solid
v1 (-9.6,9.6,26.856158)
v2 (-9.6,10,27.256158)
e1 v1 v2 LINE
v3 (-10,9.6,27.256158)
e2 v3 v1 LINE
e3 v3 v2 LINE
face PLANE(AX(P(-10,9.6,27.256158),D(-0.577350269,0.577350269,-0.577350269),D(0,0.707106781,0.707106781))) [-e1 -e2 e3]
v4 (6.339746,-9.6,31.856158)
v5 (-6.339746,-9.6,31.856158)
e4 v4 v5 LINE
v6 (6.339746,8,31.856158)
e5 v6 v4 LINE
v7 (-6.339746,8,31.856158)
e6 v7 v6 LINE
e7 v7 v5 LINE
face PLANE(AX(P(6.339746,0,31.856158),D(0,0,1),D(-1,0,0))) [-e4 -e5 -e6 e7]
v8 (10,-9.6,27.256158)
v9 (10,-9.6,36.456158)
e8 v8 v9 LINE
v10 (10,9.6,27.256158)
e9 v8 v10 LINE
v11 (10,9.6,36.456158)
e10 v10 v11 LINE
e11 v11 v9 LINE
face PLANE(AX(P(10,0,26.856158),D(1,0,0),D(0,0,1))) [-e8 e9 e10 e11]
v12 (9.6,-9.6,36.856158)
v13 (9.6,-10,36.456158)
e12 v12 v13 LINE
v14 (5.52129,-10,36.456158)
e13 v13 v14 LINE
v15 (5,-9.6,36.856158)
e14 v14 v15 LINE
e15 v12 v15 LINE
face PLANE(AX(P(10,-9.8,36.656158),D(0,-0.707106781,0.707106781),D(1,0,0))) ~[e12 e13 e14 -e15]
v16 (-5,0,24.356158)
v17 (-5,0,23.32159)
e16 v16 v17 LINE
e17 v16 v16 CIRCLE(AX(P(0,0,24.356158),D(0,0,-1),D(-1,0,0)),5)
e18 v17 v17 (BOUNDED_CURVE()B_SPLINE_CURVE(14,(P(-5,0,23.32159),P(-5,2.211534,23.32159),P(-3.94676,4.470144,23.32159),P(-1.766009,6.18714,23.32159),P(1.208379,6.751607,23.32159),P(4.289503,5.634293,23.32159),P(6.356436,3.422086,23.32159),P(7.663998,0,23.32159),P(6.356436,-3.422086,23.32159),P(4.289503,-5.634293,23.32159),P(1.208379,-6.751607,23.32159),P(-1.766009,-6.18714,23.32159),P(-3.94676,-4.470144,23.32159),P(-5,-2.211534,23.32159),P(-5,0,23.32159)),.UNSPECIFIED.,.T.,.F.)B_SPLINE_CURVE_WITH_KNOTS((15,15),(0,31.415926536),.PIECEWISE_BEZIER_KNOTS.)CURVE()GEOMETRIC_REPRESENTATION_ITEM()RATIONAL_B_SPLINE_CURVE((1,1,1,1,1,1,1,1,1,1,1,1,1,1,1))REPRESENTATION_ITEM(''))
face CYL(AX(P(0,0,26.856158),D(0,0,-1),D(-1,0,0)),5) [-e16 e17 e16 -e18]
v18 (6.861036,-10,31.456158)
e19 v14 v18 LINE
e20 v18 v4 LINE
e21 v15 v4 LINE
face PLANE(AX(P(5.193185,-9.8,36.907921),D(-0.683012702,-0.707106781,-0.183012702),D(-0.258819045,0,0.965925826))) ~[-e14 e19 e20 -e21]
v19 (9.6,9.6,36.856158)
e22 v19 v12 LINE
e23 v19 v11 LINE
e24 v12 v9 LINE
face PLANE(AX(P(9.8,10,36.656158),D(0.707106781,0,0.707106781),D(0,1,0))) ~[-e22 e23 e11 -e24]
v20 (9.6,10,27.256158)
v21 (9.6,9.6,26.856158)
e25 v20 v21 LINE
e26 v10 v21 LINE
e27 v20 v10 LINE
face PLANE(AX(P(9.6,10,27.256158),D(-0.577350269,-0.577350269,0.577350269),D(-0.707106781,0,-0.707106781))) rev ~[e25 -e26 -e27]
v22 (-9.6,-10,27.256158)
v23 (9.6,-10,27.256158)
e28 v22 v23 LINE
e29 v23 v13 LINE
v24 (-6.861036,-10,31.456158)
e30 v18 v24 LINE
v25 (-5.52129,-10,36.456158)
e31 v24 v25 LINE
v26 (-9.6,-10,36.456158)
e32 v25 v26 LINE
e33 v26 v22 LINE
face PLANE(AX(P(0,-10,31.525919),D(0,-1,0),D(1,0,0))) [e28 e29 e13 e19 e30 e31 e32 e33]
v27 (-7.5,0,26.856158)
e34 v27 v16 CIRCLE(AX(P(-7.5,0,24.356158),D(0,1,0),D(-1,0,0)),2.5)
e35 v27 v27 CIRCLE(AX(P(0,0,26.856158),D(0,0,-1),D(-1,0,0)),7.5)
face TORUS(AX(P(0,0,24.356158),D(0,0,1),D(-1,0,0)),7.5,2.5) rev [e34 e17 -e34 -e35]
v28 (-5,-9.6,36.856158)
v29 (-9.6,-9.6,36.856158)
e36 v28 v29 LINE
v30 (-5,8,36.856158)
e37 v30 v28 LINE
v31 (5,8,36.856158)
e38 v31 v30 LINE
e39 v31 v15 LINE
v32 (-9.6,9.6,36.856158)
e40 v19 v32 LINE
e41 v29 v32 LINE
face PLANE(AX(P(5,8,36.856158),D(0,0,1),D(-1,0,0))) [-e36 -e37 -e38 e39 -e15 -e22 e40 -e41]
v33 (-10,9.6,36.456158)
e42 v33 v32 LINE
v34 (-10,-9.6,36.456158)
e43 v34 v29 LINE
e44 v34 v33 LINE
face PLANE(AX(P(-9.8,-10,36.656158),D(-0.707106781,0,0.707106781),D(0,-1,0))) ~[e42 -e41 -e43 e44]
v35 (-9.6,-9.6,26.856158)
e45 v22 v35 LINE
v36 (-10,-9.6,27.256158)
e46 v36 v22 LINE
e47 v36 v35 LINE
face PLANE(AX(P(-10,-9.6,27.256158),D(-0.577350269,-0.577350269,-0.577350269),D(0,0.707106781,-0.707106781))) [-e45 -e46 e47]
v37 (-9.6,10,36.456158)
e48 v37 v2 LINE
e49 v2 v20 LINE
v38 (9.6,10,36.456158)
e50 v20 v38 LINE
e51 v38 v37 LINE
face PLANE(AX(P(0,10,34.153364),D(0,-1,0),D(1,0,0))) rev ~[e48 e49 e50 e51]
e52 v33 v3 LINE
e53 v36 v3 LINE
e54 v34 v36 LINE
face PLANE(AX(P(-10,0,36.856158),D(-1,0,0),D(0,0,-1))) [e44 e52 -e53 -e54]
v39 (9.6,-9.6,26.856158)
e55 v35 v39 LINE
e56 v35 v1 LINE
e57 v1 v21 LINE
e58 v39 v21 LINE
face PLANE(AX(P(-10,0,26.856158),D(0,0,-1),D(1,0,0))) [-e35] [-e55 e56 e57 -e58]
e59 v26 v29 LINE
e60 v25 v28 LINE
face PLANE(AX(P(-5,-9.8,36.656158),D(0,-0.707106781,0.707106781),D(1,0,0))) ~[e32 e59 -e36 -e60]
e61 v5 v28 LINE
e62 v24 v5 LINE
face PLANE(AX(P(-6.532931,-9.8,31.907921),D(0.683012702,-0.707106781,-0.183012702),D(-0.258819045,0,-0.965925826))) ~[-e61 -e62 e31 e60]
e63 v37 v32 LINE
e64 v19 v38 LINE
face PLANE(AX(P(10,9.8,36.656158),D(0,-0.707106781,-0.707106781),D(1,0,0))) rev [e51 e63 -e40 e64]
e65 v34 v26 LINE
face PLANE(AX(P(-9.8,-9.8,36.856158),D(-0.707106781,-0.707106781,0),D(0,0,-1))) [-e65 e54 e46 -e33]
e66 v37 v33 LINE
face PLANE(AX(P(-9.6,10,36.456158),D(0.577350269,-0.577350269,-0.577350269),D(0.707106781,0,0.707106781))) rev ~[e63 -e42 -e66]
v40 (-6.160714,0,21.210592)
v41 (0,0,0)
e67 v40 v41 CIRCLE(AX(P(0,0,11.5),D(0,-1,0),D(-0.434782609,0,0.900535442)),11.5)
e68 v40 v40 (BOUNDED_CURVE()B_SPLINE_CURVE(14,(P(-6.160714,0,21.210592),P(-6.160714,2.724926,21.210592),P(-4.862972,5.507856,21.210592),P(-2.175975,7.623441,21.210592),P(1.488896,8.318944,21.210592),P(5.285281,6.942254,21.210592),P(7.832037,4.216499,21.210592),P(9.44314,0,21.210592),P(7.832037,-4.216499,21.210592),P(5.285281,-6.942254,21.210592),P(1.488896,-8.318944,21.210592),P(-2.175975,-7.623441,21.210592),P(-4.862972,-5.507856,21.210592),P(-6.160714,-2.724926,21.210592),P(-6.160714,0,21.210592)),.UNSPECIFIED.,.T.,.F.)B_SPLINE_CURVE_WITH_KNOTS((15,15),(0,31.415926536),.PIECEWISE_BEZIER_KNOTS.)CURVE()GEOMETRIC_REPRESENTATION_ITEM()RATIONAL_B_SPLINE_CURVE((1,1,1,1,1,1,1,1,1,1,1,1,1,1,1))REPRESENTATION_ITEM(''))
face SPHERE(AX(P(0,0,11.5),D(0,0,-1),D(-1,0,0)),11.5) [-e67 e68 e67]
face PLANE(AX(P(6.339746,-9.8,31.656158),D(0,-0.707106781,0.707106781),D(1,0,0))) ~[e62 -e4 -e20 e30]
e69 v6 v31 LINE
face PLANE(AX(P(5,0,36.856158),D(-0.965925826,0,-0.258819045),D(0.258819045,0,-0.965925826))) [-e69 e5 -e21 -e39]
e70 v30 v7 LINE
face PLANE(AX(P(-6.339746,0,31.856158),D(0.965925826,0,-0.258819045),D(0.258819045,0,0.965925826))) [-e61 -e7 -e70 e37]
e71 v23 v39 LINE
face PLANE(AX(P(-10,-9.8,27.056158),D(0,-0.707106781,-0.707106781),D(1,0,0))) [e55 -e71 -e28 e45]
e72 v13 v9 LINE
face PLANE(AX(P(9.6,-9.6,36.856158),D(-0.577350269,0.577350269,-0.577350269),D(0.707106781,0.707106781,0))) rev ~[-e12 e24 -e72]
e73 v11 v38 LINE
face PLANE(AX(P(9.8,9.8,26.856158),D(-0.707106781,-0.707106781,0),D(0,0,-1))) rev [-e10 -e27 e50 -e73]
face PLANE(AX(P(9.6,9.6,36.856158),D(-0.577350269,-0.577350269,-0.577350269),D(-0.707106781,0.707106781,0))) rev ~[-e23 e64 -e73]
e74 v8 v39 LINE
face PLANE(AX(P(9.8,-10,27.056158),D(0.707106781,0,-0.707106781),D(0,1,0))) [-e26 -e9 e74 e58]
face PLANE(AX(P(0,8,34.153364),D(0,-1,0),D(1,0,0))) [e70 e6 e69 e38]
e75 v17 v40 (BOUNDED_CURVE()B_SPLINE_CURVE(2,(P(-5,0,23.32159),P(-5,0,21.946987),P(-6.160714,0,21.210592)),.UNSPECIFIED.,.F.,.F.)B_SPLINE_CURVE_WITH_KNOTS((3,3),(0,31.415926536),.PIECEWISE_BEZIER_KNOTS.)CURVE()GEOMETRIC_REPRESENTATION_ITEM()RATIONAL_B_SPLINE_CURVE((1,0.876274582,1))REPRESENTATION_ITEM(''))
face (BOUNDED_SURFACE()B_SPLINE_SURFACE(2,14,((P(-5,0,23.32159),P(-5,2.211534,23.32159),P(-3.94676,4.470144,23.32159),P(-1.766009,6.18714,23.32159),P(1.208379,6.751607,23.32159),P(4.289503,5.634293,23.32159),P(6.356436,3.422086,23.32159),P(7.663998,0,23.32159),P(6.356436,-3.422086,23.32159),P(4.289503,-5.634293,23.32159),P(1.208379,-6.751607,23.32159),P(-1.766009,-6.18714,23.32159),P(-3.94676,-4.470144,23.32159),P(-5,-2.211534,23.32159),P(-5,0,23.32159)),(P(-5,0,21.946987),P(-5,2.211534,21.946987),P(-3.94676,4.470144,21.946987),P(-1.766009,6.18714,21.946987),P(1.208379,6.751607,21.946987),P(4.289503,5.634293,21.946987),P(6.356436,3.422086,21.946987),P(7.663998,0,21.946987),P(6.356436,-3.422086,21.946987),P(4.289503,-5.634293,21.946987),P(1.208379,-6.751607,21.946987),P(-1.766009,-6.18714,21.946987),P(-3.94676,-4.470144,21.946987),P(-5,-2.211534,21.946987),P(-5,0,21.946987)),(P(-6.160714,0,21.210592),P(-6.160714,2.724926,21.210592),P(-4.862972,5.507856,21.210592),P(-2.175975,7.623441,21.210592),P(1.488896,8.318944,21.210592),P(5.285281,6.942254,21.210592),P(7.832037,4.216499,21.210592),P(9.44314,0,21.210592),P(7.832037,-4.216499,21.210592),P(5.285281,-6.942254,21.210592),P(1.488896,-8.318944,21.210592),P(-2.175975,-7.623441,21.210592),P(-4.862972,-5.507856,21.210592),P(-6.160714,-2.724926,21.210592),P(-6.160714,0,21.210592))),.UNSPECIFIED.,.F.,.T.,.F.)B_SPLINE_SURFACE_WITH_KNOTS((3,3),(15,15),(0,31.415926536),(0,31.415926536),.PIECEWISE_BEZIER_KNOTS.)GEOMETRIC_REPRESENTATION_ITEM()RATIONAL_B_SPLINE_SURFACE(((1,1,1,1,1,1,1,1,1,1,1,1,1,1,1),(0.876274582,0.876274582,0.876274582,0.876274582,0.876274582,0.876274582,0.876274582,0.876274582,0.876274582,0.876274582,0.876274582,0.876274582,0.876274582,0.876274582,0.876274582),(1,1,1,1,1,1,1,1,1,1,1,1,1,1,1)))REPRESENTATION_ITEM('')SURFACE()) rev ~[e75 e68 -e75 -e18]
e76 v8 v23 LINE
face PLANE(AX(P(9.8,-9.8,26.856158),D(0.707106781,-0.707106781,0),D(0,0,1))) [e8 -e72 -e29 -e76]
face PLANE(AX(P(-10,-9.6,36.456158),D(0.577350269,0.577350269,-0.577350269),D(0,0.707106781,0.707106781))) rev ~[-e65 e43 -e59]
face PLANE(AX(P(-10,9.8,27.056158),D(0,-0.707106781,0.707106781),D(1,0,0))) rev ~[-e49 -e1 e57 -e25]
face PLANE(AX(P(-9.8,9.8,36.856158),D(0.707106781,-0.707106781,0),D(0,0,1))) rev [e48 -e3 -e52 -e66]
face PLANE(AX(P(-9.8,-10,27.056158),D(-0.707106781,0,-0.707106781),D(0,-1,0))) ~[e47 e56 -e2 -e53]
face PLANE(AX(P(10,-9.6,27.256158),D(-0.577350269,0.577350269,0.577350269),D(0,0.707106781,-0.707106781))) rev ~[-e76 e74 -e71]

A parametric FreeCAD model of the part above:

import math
import FreeCAD as App
import Part
import Sketcher
from FreeCAD import Vector
Q = App.Units.Quantity


def edges_at(feature, points):
    """Names of the edges that pass closest to the given points."""
    edges = feature.Shape.Edges
    near = lambda p: min(range(len(edges)), key=lambda i: edges[i].distToShape(Part.Vertex(*p))[0])
    return sorted({f"Edge{near(p) + 1}" for p in points})

doc = App.newDocument("Part")
body = doc.addObject("PartDesign::Body", "Body")

# Sketch on XZ plane
sketch1 = doc.addObject("Sketcher::SketchObject", "Sketch")
body.addObject(sketch1)
sketch1.AttachmentSupport = (doc.XZ_Plane, [""])
sketch1.MapMode = "FlatFace"
sketch1.addGeometry([
    Part.LineSegment(Vector(0, 26.856158, 0), Vector(-5, 26.856158, 0)),
    Part.LineSegment(Vector(-5, 26.856158, 0), Vector(-5, 21.856158, 0)),
    Part.ArcOfCircle(Part.Circle(Vector(0, 11.5, 0), Vector(0, 0, 1), 11.5), math.radians(115.771462), math.radians(270)),
    Part.LineSegment(Vector(0, 0, 0), Vector(0, 26.856158, 0)),
], False)
sketch1.addConstraint([
    Sketcher.Constraint("Coincident", 0, 2, 1, 1),
    Sketcher.Constraint("Coincident", 1, 2, 2, 1),
    Sketcher.Constraint("Coincident", 2, 2, 3, 1),
    Sketcher.Constraint("Coincident", 3, 2, 0, 1),
    Sketcher.Constraint("Horizontal", 0),
    Sketcher.Constraint("Vertical", 1),
    Sketcher.Constraint("Vertical", 3),
    Sketcher.Constraint("Coincident", 2, 2, -1, 1),
    Sketcher.Constraint("PointOnObject", 2, 3, -2),
    Sketcher.Constraint("Equal", 0, 1),
    Sketcher.Constraint("Radius", 2, 11.5),
    Sketcher.Constraint("DistanceX", 0, 2, 0, 1, 5.0),
])
revolution = doc.addObject("PartDesign::Revolution", "Revolution")
body.addObject(revolution)
revolution.Profile = sketch1
revolution.ReferenceAxis = (sketch1, ["V_Axis"])
revolution.Angle = 360

# Sketch on XZ plane
sketch2 = doc.addObject("Sketcher::SketchObject", "Sketch001")
body.addObject(sketch2)
sketch2.AttachmentSupport = (doc.XZ_Plane, [""])
sketch2.MapMode = "FlatFace"
sketch2.addGeometry([
    Part.ArcOfCircle(Part.Circle(Vector(0, 11.5, 0), Vector(0, 0, 1), 11.5), math.radians(90), math.radians(115.771462)),
    Part.LineSegment(Vector(0, 23, 0), Vector(0, 26.856158, 0)),
    Part.LineSegment(Vector(0, 26.856158, 0), Vector(-5, 26.856158, 0)),
    Part.LineSegment(Vector(-5, 26.856158, 0), Vector(-5, 21.856158, 0)),
], False)
sketch2.addConstraint([
    Sketcher.Constraint("Coincident", 0, 1, 1, 1),
    Sketcher.Constraint("Coincident", 1, 2, 2, 1),
    Sketcher.Constraint("Coincident", 2, 2, 3, 1),
    Sketcher.Constraint("Coincident", 3, 2, 0, 2),
    Sketcher.Constraint("Vertical", 1),
    Sketcher.Constraint("Horizontal", 2),
    Sketcher.Constraint("Vertical", 3),
    Sketcher.Constraint("PointOnObject", 0, 3, -2),
    Sketcher.Constraint("PointOnObject", 0, 1, -2),
    Sketcher.Constraint("Equal", 2, 3),
    Sketcher.Constraint("Radius", 0, 11.5),
    Sketcher.Constraint("DistanceX", 2, 2, 2, 1, 5.0),
    Sketcher.Constraint("DistanceY", -1, 1, 0, 1, 23.0),
])
revolution2 = doc.addObject("PartDesign::Revolution", "Revolution001")
body.addObject(revolution2)
revolution2.Profile = sketch2
revolution2.ReferenceAxis = (sketch2, ["V_Axis"])
revolution2.Angle = 360

# Sketch on XZ plane
sketch3 = doc.addObject("Sketcher::SketchObject", "Sketch002")
body.addObject(sketch3)
sketch3.AttachmentSupport = (doc.XZ_Plane, [""])
sketch3.MapMode = "FlatFace"
sketch3.addGeometry([
    Part.LineSegment(Vector(10, 26.856158, 0), Vector(10, 36.856158, 0)),  # 0
    Part.LineSegment(Vector(10, 36.856158, 0), Vector(5, 36.856158, 0)),  # 1
    Part.LineSegment(Vector(5, 36.856158, 0), Vector(6.339746, 31.856158, 0)),  # 2
    Part.LineSegment(Vector(6.339746, 31.856158, 0), Vector(-6.339746, 31.856158, 0)),  # 3
    Part.LineSegment(Vector(-6.339746, 31.856158, 0), Vector(-5, 36.856158, 0)),  # 4
    Part.LineSegment(Vector(-5, 36.856158, 0), Vector(-10, 36.856158, 0)),  # 5
    Part.LineSegment(Vector(-10, 36.856158, 0), Vector(-10, 26.856158, 0)),  # 6
    Part.LineSegment(Vector(-10, 26.856158, 0), Vector(10, 26.856158, 0)),  # 7
], False)
sketch3.addConstraint([
    Sketcher.Constraint("Coincident", 0, 2, 1, 1),
    Sketcher.Constraint("Coincident", 1, 2, 2, 1),
    Sketcher.Constraint("Coincident", 2, 2, 3, 1),
    Sketcher.Constraint("Coincident", 3, 2, 4, 1),
    Sketcher.Constraint("Coincident", 4, 2, 5, 1),
    Sketcher.Constraint("Coincident", 5, 2, 6, 1),
    Sketcher.Constraint("Coincident", 6, 2, 7, 1),
    Sketcher.Constraint("Coincident", 7, 2, 0, 1),
    Sketcher.Constraint("Vertical", 0),
    Sketcher.Constraint("Horizontal", 1),
    Sketcher.Constraint("Horizontal", 3),
    Sketcher.Constraint("Horizontal", 5),
    Sketcher.Constraint("Vertical", 6),
    Sketcher.Constraint("Horizontal", 7),
    Sketcher.Constraint("Symmetric", 1, 2, 4, 2, -2),
    Sketcher.Constraint("Equal", 1, 5),
    Sketcher.Constraint("Equal", 2, 4),
    Sketcher.Constraint("DistanceX", 1, 2, 1, 1, 5.0),
    Sketcher.Constraint("DistanceX", 7, 1, 7, 2, 20.0),
    Sketcher.Constraint("DistanceY", 0, 1, 0, 2, 10.0),
    Sketcher.Constraint("Angle", 2, Q("-75 deg")),
    Sketcher.Constraint("DistanceY", 2, 2, 1, 2, 5.0),
    Sketcher.Constraint("DistanceY", -1, 1, 0, 2, 36.856158),
])
pad1 = doc.addObject("PartDesign::Pad", "Pad")
body.addObject(pad1)
pad1.Profile = sketch3
pad1.Length = 20
pad1.Midplane = True

# Sketch on XZ plane
sketch4 = doc.addObject("Sketcher::SketchObject", "Sketch003")
body.addObject(sketch4)
sketch4.AttachmentSupport = (doc.XZ_Plane, [""])
sketch4.MapMode = "FlatFace"
sketch4.AttachmentOffset = App.Placement(Vector(0, 0, -8), App.Rotation())
sketch4.addGeometry([
    Part.LineSegment(Vector(6.339746, 31.856158, 0), Vector(5, 36.856158, 0)),
    Part.LineSegment(Vector(5, 36.856158, 0), Vector(-5, 36.856158, 0)),
    Part.LineSegment(Vector(-5, 36.856158, 0), Vector(-6.339746, 31.856158, 0)),
    Part.LineSegment(Vector(-6.339746, 31.856158, 0), Vector(6.339746, 31.856158, 0)),
], False)
sketch4.addConstraint([
    Sketcher.Constraint("Coincident", 0, 2, 1, 1),
    Sketcher.Constraint("Coincident", 1, 2, 2, 1),
    Sketcher.Constraint("Coincident", 2, 2, 3, 1),
    Sketcher.Constraint("Coincident", 3, 2, 0, 1),
    Sketcher.Constraint("Horizontal", 1),
    Sketcher.Constraint("Horizontal", 3),
    Sketcher.Constraint("Equal", 0, 2),
    Sketcher.Constraint("DistanceX", 1, 2, 1, 1, 10.0),
    Sketcher.Constraint("Angle", 0, Q("105 deg")),
    Sketcher.Constraint("DistanceX", -1, 1, 0, 2, 5.0),
    Sketcher.Constraint("DistanceY", 2, 2, 1, 2, 5.0),
    Sketcher.Constraint("DistanceY", -1, 1, 0, 2, 36.856158),
])
pad2 = doc.addObject("PartDesign::Pad", "Pad001")
body.addObject(pad2)
pad2.Profile = sketch4
pad2.Length = 2
pad2.Reversed = True
doc.recompute()

fillet = doc.addObject("PartDesign::Fillet", "Fillet")
body.addObject(fillet)
fillet.Base = (pad2, edges_at(pad2, [(-5, 0, 24.356), (5, 0, 21.856), (5, 0, 26.856)]))
fillet.Radius = 2.5
doc.recompute()

chamfer = doc.addObject("PartDesign::Chamfer", "Chamfer")
body.addObject(chamfer)
chamfer.Base = (fillet, edges_at(fillet, [
    (0, -10, 26.856),
    (10, -10, 31.856),
    (7.5, -10, 36.856),
    (5.67, -10, 34.356),
    (0, -10, 31.856),
    (-5.67, -10, 34.356),
    (-7.5, -10, 36.856),
    (-10, -10, 31.856),
    (10, 0, 26.856),
    (10, 10, 31.856),
    (10, 0, 36.856),
    (7.5, 0, 26.856),
    (0, 10, 26.856),
    (-10, 0, 26.856),
    (-10, 0, 36.856),
    (-10, 10, 31.856),
    (0, 10, 36.856),
]))
chamfer.Size = 0.4

doc.recompute()
